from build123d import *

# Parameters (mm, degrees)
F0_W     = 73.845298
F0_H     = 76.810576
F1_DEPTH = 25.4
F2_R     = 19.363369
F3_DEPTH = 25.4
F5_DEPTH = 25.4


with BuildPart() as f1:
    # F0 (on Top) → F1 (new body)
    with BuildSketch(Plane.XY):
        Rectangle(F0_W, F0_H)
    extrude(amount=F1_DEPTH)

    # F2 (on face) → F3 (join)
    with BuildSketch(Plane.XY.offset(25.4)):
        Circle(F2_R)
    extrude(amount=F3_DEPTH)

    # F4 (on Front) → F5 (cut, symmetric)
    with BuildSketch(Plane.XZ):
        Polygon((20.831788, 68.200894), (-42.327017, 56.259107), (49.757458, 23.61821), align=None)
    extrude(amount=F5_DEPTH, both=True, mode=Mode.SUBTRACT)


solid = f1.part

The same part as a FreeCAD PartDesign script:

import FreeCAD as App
import Part
import Sketcher
from FreeCAD import Vector
Q = App.Units.Quantity


def add_polygon(sketch, points):
    """Adds a closed chain of lines whose ends are joined by coincident constraints."""
    first, n = sketch.GeometryCount, len(points)
    for a, b in zip(points, points[1:] + points[:1]):
        sketch.addGeometry(Part.LineSegment(App.Vector(*a, 0), App.Vector(*b, 0)), False)
    for i in range(n):
        sketch.addConstraint(Sketcher.Constraint("Coincident", first + i, 2, first + (i + 1) % n, 1))

doc = App.newDocument("Part")
body = doc.addObject("PartDesign::Body", "Body")

sketch1 = body.newObject("Sketcher::SketchObject", "Sketch")
sketch1.AttachmentSupport = (doc.getObject("XY_Plane"), [""])
sketch1.MapMode = "FlatFace"
add_polygon(sketch1, [(-36.922649, 38.405288), (-36.922649, -38.405288), (36.922649, -38.405288), (36.922649, 38.405288)])
sketch1.addConstraint(Sketcher.Constraint("Vertical", 0))
sketch1.addConstraint(Sketcher.Constraint("Horizontal", 1))
sketch1.addConstraint(Sketcher.Constraint("Vertical", 2))
sketch1.addConstraint(Sketcher.Constraint("Horizontal", 3))
sketch1.addConstraint(Sketcher.Constraint("Symmetric", 0, 2, 2, 2, -1, 1))
sketch1.addConstraint(Sketcher.Constraint("DistanceX", 1, 1, 1, 2, 73.845298))
sketch1.addConstraint(Sketcher.Constraint("DistanceY", 0, 2, 0, 1, 76.810576))
pad1 = body.newObject("PartDesign::Pad", "Pad")
pad1.Profile = sketch1
pad1.Length = Q("1 in")

sketch2 = body.newObject("Sketcher::SketchObject", "Sketch001")
sketch2.AttachmentSupport = (doc.getObject("XY_Plane"), [""])
sketch2.MapMode = "FlatFace"
sketch2.AttachmentOffset = App.Placement(Vector(0, 0, 1 * 25.4), App.Rotation())
sketch2.addGeometry(Part.Circle(Vector(0, 0, 0), Vector(0, 0, 1), 19.363369), False)
sketch2.addConstraint(Sketcher.Constraint("Coincident", 0, 3, -1, 1))
sketch2.addConstraint(Sketcher.Constraint("Diameter", 0, 38.726738))
pad2 = body.newObject("PartDesign::Pad", "Pad001")
pad2.Profile = sketch2
pad2.Length = Q("1 in")

sketch3 = body.newObject("Sketcher::SketchObject", "Sketch002")
sketch3.AttachmentSupport = (doc.getObject("XZ_Plane"), [""])
sketch3.MapMode = "FlatFace"
add_polygon(sketch3, [(20.831788, 68.200894), (-42.327017, 56.259107), (49.757458, 23.61821)])
sketch3.addConstraint(Sketcher.Constraint("Distance", 0, 64.277842))
sketch3.addConstraint(Sketcher.Constraint("Distance", 2, 53.144239))
sketch3.addConstraint(Sketcher.Constraint("DistanceY", -1, 1, 1, 2, 23.61821))
sketch3.addConstraint(Sketcher.Constraint("DistanceX", 2, 2, 1, 2, 28.92567))
sketch3.addConstraint(Sketcher.Constraint("Distance", 1, 97.698407))
sketch3.addConstraint(Sketcher.Constraint("DistanceX", 0, 2, -1, 1, 42.327017))
pocket1 = body.newObject("PartDesign::Pocket", "Pocket")
pocket1.Profile = sketch3
pocket1.Length = Q("2 in")
pocket1.Midplane = True

doc.recompute()
